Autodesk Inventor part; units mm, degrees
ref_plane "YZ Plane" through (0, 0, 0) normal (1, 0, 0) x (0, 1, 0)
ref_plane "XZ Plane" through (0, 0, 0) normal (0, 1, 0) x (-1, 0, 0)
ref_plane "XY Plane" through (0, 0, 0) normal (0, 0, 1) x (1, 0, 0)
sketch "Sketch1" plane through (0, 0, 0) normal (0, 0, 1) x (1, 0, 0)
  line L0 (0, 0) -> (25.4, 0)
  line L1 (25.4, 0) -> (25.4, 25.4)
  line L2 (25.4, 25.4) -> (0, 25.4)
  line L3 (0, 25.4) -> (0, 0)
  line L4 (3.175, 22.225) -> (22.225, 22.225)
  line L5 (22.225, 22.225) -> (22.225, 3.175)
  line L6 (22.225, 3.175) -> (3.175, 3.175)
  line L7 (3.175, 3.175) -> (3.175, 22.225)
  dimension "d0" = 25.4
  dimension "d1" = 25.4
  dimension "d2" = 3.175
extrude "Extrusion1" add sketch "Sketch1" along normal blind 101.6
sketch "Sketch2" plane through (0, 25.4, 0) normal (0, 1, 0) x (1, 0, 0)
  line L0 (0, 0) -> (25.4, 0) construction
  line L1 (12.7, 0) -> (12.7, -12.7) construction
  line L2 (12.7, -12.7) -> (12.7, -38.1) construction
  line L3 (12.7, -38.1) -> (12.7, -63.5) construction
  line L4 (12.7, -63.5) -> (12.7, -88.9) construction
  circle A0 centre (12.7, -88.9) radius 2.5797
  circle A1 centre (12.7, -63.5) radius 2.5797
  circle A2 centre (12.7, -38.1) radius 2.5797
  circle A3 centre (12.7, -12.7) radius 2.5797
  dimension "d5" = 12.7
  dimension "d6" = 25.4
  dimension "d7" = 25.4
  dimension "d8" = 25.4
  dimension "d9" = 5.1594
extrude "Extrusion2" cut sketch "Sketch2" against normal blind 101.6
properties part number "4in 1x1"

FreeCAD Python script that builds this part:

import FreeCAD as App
import Part
import Sketcher

V = App.Vector
Q = App.Units.Quantity

doc = App.newDocument("Part")
body = doc.addObject("PartDesign::Body", "Body")

# Sketch on XY plane
sketch1 = doc.addObject("Sketcher::SketchObject", "Sketch")
body.addObject(sketch1)
sketch1.AttachmentSupport = (doc.XY_Plane, [""])
sketch1.MapMode = "FlatFace"
sketch1.addGeometry([
    Part.LineSegment(V(0, 25.4, 0), V(0, 0, 0)),  # 0
    Part.LineSegment(V(0, 0, 0), V(25.4, 0, 0)),  # 1
    Part.LineSegment(V(25.4, 0, 0), V(25.4, 25.4, 0)),  # 2
    Part.LineSegment(V(25.4, 25.4, 0), V(0, 25.4, 0)),  # 3
    Part.LineSegment(V(3.175, 3.175, 0), V(3.175, 22.225, 0)),  # 4
    Part.LineSegment(V(3.175, 22.225, 0), V(22.225, 22.225, 0)),  # 5
    Part.LineSegment(V(22.225, 22.225, 0), V(22.225, 3.175, 0)),  # 6
    Part.LineSegment(V(22.225, 3.175, 0), V(3.175, 3.175, 0)),  # 7
], False)
sketch1.addConstraint([
    Sketcher.Constraint("Coincident", 0, 2, 1, 1),
    Sketcher.Constraint("Coincident", 1, 2, 2, 1),
    Sketcher.Constraint("Coincident", 2, 2, 3, 1),
    Sketcher.Constraint("Coincident", 3, 2, 0, 1),
    Sketcher.Constraint("Coincident", 4, 2, 5, 1),
    Sketcher.Constraint("Coincident", 5, 2, 6, 1),
    Sketcher.Constraint("Coincident", 6, 2, 7, 1),
    Sketcher.Constraint("Coincident", 7, 2, 4, 1),
    Sketcher.Constraint("Vertical", 0),
    Sketcher.Constraint("Horizontal", 1),
    Sketcher.Constraint("Vertical", 2),
    Sketcher.Constraint("Horizontal", 3),
    Sketcher.Constraint("Vertical", 4),
    Sketcher.Constraint("Horizontal", 5),
    Sketcher.Constraint("Vertical", 6),
    Sketcher.Constraint("Horizontal", 7),
    Sketcher.Constraint("Coincident", 0, 2, -1, 1),
    Sketcher.Constraint("Equal", 3, 0),
    Sketcher.Constraint("Equal", 7, 4),
    Sketcher.Constraint("DistanceX", 1, 1, 1, 2, Q("1 in")),
    Sketcher.Constraint("DistanceX", -1, 1, 4, 2, Q("0.125 in")),
    Sketcher.Constraint("DistanceY", -1, 1, 6, 2, Q("0.125 in")),
    Sketcher.Constraint("DistanceY", 4, 2, 3, 2, Q("0.125 in")),
])
pad1 = doc.addObject("PartDesign::Pad", "Pad")
body.addObject(pad1)
pad1.Profile = sketch1
pad1.Length = Q("4 in")

# Sketch on XZ plane
sketch2 = doc.addObject("Sketcher::SketchObject", "Sketch001")
body.addObject(sketch2)
sketch2.AttachmentSupport = (doc.XZ_Plane, [""])
sketch2.MapMode = "FlatFace"
sketch2.AttachmentOffset = App.Placement(V(0, 0, -1 * 25.4), App.Rotation())
sketch2.addGeometry([
    Part.Circle(V(12.7, 88.9, 0), V(0, 0, 1), 2.5797),
    Part.Circle(V(12.7, 63.5, 0), V(0, 0, 1), 2.5797),
    Part.Circle(V(12.7, 38.1, 0), V(0, 0, 1), 2.5797),
    Part.Circle(V(12.7, 12.7, 0), V(0, 0, 1), 2.5797),
], False)
sketch2.addConstraint([
    Sketcher.Constraint("Equal", 0, 1),
    Sketcher.Constraint("Equal", 1, 2),
    Sketcher.Constraint("Equal", 2, 3),
    Sketcher.Constraint("Vertical", 0, 3, 1, 3),
    Sketcher.Constraint("Vertical", 1, 3, 2, 3),
    Sketcher.Constraint("Vertical", 2, 3, 3, 3),
    Sketcher.Constraint("Diameter", 0, Q("0.203126 in")),
    Sketcher.Constraint("DistanceY", 1, 3, 0, 3, Q("1 in")),
    Sketcher.Constraint("DistanceY", 2, 3, 1, 3, Q("1 in")),
    Sketcher.Constraint("DistanceY", 3, 3, 2, 3, Q("1 in")),
    Sketcher.Constraint("DistanceX", -1, 1, 0, 3, Q("0.5 in")),
    Sketcher.Constraint("DistanceY", -1, 1, 3, 3, Q("0.5 in")),
])
pocket1 = doc.addObject("PartDesign::Pocket", "Pocket")
body.addObject(pocket1)
pocket1.Profile = sketch2
pocket1.Length = Q("4 in")
pocket1.Reversed = True

doc.recompute()
